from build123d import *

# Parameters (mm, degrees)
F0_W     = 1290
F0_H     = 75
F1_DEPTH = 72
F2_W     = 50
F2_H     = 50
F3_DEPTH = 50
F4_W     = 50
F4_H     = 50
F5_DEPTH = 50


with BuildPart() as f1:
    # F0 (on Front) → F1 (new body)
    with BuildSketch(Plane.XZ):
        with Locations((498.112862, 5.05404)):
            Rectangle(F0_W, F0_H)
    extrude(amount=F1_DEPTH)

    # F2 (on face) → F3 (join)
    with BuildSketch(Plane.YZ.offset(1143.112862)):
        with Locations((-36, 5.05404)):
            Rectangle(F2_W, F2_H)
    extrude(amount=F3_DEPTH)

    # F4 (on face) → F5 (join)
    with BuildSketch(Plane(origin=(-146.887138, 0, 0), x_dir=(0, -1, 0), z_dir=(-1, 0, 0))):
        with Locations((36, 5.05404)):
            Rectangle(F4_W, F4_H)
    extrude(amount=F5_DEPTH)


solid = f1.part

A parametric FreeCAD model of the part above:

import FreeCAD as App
import Part
import Sketcher

V = App.Vector
Q = App.Units.Quantity

doc = App.newDocument("Part")
params = doc.addObject("Spreadsheet::Sheet", "Params")
for row, (alias, value) in enumerate([
    ("sketch1_width", "1290 mm"),
    ("sketch1_height", "75 mm"),
    ("pad1_length", "72 mm"),
    ("sketch2_width", "50 mm"),
    ("pad2_length", "50 mm"),
    ("sketch3_width", "50 mm"),
    ("pad3_length", "50 mm"),
], start=1):
    params.set(f"A{row}", alias)
    params.set(f"B{row}", "=" + value)
    params.setAlias(f"B{row}", alias)

body = doc.addObject("PartDesign::Body", "Body")

# Sketch on XZ plane
sketch1 = body.newObject("Sketcher::SketchObject", "Sketch")
sketch1.AttachmentSupport = (doc.getObject("XZ_Plane"), [""])
sketch1.MapMode = "FlatFace"
sketch1.addGeometry([
    Part.LineSegment(V(-147, 43, 0), V(-147, -32, 0)),
    Part.LineSegment(V(-147, -32, 0), V(1143, -32, 0)),
    Part.LineSegment(V(1143, -32, 0), V(1143, 43, 0)),
    Part.LineSegment(V(1143, 43, 0), V(-147, 43, 0)),
], False)
sketch1.addConstraint([
    Sketcher.Constraint("Coincident", 0, 2, 1, 1),
    Sketcher.Constraint("Coincident", 1, 2, 2, 1),
    Sketcher.Constraint("Coincident", 2, 2, 3, 1),
    Sketcher.Constraint("Coincident", 3, 2, 0, 1),
    Sketcher.Constraint("Vertical", 0),
    Sketcher.Constraint("Horizontal", 1),
    Sketcher.Constraint("Vertical", 2),
    Sketcher.Constraint("Horizontal", 3),
    Sketcher.Constraint("DistanceX", 1, 1, 1, 2, Q("1290 mm")),
    Sketcher.Constraint("DistanceY", 0, 2, 0, 1, Q("75 mm")),
    Sketcher.Constraint("DistanceX", 0, 2, -1, 1, Q("146.887138 mm")),
    Sketcher.Constraint("DistanceY", 0, 2, -1, 1, Q("32.44596 mm")),
])
sketch1.setExpression("Constraints[8]", "Params.sketch1_width")
sketch1.setExpression("Constraints[9]", "Params.sketch1_height")
pad1 = body.newObject("PartDesign::Pad", "Pad")
pad1.Profile = sketch1
pad1.setExpression("Length", "Params.pad1_length")

# Sketch on YZ plane
sketch2 = body.newObject("Sketcher::SketchObject", "Sketch001")
sketch2.AttachmentSupport = (doc.getObject("YZ_Plane"), [""])
sketch2.MapMode = "FlatFace"
sketch2.AttachmentOffset = App.Placement(V(0, 0, 1143.112862), App.Rotation())
sketch2.addGeometry([
    Part.LineSegment(V(-61, 30, 0), V(-61, -20, 0)),
    Part.LineSegment(V(-61, -20, 0), V(-11, -20, 0)),
    Part.LineSegment(V(-11, -20, 0), V(-11, 30, 0)),
    Part.LineSegment(V(-11, 30, 0), V(-61, 30, 0)),
], False)
sketch2.addConstraint([
    Sketcher.Constraint("Coincident", 0, 2, 1, 1),
    Sketcher.Constraint("Coincident", 1, 2, 2, 1),
    Sketcher.Constraint("Coincident", 2, 2, 3, 1),
    Sketcher.Constraint("Coincident", 3, 2, 0, 1),
    Sketcher.Constraint("Vertical", 0),
    Sketcher.Constraint("Horizontal", 1),
    Sketcher.Constraint("Vertical", 2),
    Sketcher.Constraint("Horizontal", 3),
    Sketcher.Constraint("Equal", 3, 0),
    Sketcher.Constraint("DistanceX", 1, 1, 1, 2, Q("50 mm")),
    Sketcher.Constraint("DistanceX", 0, 2, -1, 1, Q("61 mm")),
    Sketcher.Constraint("DistanceY", 0, 2, -1, 1, Q("19.94596 mm")),
])
sketch2.setExpression("Constraints[9]", "Params.sketch2_width")
pad2 = body.newObject("PartDesign::Pad", "Pad001")
pad2.Profile = sketch2
pad2.setExpression("Length", "Params.pad2_length")

# Sketch on YZ plane
sketch3 = body.newObject("Sketcher::SketchObject", "Sketch002")
sketch3.AttachmentSupport = (doc.getObject("YZ_Plane"), [""])
sketch3.MapMode = "FlatFace"
sketch3.AttachmentOffset = App.Placement(V(0, 0, -146.887138), App.Rotation())
sketch3.addGeometry([
    Part.LineSegment(V(-11, 30, 0), V(-11, -20, 0)),
    Part.LineSegment(V(-11, -20, 0), V(-61, -20, 0)),
    Part.LineSegment(V(-61, -20, 0), V(-61, 30, 0)),
    Part.LineSegment(V(-61, 30, 0), V(-11, 30, 0)),
], False)
sketch3.addConstraint([
    Sketcher.Constraint("Coincident", 0, 2, 1, 1),
    Sketcher.Constraint("Coincident", 1, 2, 2, 1),
    Sketcher.Constraint("Coincident", 2, 2, 3, 1),
    Sketcher.Constraint("Coincident", 3, 2, 0, 1),
    Sketcher.Constraint("Vertical", 0),
    Sketcher.Constraint("Horizontal", 1),
    Sketcher.Constraint("Vertical", 2),
    Sketcher.Constraint("Horizontal", 3),
    Sketcher.Constraint("Equal", 3, 0),
    Sketcher.Constraint("DistanceX", 1, 2, 1, 1, Q("50 mm")),
    Sketcher.Constraint("DistanceX", 0, 2, -1, 1, Q("11 mm")),
    Sketcher.Constraint("DistanceY", 0, 2, -1, 1, Q("19.94596 mm")),
])
sketch3.setExpression("Constraints[9]", "Params.sketch3_width")
pad3 = body.newObject("PartDesign::Pad", "Pad002")
pad3.Profile = sketch3
pad3.setExpression("Length", "Params.pad3_length")
pad3.Reversed = True

doc.recompute()
